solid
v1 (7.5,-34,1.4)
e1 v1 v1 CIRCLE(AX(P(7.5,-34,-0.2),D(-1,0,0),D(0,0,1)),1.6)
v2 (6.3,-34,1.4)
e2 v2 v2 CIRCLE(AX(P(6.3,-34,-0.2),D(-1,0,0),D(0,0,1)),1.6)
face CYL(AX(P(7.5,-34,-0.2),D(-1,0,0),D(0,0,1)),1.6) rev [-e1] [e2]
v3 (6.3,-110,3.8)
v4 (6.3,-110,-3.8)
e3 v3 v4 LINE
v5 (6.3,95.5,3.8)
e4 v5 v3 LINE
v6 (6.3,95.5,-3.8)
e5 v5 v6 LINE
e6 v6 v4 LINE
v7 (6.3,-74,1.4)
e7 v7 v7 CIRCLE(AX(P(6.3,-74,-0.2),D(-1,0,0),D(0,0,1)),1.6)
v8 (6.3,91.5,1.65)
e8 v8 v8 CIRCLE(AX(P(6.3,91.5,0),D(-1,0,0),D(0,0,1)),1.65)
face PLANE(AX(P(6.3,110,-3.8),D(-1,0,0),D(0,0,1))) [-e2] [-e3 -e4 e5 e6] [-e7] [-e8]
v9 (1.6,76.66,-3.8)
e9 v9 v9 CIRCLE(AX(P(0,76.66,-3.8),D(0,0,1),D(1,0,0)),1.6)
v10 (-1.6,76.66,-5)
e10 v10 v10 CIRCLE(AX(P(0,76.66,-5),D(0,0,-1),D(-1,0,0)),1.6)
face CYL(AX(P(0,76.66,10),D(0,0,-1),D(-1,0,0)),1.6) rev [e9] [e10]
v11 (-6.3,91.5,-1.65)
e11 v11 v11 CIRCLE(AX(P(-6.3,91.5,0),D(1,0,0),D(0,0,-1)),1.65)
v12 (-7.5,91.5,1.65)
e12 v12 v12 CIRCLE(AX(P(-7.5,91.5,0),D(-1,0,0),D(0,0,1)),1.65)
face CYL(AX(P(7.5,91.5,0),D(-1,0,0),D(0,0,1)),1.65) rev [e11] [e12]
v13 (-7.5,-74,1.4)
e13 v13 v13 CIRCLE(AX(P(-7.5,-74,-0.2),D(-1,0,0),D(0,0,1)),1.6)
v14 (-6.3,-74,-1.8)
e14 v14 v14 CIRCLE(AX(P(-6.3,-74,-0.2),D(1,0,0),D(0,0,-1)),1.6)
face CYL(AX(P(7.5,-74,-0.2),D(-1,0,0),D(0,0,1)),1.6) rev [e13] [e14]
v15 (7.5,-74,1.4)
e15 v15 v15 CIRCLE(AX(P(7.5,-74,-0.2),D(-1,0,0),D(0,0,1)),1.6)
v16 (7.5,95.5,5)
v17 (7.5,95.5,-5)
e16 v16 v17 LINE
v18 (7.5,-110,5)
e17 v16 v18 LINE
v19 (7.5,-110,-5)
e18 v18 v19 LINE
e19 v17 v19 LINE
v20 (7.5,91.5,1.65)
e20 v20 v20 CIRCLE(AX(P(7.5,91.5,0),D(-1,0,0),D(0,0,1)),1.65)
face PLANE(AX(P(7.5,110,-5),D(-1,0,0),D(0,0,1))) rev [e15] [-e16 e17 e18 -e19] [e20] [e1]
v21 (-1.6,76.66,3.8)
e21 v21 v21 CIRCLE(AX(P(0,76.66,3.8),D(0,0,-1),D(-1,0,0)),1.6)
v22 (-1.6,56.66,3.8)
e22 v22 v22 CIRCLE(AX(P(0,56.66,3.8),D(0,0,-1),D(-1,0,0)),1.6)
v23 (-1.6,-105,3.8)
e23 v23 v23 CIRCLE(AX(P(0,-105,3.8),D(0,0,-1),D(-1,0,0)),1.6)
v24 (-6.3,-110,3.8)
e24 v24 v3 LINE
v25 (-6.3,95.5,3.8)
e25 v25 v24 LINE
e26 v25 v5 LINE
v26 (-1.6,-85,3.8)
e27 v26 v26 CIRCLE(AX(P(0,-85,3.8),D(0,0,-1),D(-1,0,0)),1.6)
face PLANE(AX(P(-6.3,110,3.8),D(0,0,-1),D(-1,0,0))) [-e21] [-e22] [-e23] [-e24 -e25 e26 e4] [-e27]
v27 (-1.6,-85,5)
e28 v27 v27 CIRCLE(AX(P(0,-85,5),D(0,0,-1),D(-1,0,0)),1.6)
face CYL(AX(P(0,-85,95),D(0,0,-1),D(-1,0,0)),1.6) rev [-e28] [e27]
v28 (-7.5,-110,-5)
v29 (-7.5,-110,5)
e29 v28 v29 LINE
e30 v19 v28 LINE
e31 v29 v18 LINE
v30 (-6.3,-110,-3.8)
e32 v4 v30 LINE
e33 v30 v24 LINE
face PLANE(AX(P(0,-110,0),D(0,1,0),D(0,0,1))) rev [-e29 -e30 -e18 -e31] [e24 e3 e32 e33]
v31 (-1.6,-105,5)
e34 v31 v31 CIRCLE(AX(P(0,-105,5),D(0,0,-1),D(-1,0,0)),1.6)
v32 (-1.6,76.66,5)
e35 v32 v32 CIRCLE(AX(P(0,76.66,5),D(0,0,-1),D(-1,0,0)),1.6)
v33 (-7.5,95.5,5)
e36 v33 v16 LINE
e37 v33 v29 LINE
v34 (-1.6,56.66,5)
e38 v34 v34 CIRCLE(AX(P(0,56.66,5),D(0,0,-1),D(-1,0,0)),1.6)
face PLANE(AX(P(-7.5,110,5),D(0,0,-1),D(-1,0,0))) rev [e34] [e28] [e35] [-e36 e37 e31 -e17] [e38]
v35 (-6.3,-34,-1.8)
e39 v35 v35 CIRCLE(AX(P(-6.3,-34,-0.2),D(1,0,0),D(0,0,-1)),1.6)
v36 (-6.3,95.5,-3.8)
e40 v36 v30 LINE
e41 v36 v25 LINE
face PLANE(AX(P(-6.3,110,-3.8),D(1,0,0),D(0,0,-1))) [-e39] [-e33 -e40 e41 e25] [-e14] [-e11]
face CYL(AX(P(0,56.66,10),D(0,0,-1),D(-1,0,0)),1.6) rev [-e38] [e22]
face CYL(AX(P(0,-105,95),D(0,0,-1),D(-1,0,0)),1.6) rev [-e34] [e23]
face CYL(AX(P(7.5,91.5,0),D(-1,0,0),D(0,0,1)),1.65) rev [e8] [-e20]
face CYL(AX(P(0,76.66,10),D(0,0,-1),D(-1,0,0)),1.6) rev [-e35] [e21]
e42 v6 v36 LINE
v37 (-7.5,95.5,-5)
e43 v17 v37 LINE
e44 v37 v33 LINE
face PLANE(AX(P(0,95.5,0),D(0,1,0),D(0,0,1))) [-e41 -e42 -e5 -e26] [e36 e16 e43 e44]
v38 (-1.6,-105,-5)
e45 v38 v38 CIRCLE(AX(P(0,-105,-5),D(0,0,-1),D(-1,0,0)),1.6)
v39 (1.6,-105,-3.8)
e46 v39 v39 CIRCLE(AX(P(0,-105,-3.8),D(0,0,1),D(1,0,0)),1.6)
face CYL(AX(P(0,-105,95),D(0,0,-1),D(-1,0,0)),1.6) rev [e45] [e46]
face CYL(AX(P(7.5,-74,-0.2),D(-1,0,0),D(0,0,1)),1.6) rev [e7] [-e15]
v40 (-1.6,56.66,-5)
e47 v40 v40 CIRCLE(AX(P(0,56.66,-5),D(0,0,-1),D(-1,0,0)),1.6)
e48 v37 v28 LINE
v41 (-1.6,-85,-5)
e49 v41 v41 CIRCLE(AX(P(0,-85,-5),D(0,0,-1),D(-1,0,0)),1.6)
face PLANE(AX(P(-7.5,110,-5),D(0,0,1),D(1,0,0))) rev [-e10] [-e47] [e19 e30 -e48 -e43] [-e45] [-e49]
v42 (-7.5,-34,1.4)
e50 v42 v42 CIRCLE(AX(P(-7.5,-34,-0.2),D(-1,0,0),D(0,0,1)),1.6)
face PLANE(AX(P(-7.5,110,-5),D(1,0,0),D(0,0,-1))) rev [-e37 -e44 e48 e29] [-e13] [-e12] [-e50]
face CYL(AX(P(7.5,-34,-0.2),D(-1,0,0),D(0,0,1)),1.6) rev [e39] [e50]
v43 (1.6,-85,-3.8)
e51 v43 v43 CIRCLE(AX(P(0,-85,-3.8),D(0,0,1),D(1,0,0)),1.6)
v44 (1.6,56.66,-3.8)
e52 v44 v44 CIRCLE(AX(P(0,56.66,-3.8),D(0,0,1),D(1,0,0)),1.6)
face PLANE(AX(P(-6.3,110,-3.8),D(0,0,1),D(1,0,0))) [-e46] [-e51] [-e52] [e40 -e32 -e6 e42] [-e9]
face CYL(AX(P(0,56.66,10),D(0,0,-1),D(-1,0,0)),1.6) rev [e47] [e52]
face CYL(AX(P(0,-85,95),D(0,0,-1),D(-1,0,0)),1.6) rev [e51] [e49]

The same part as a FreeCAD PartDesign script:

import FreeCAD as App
import Part
import Sketcher
Q = App.Units.Quantity

doc = App.newDocument("Part")
body = doc.addObject("PartDesign::Body", "Body")

sketch1 = body.newObject("Sketcher::SketchObject", "Sketch")
sketch1.AttachmentSupport = (doc.getObject("XZ_Plane"), [""])
sketch1.MapMode = "FlatFace"
sketch1.addGeometry([
    Part.LineSegment(App.Vector(-8, -5, 0), App.Vector(-8, 5, 0)),
    Part.LineSegment(App.Vector(-8, 5, 0), App.Vector(8, 5, 0)),
    Part.LineSegment(App.Vector(8, 5, 0), App.Vector(8, -5, 0)),
    Part.LineSegment(App.Vector(8, -5, 0), App.Vector(-8, -5, 0)),
    Part.LineSegment(App.Vector(6, 4, 0), App.Vector(-6, 4, 0)),
    Part.LineSegment(App.Vector(-6, 4, 0), App.Vector(-6, -4, 0)),
    Part.LineSegment(App.Vector(-6, -4, 0), App.Vector(6, -4, 0)),
    Part.LineSegment(App.Vector(6, -4, 0), App.Vector(6, 4, 0)),
], False)
sketch1.addConstraint([
    Sketcher.Constraint("Coincident", 0, 2, 1, 1),
    Sketcher.Constraint("Coincident", 1, 2, 2, 1),
    Sketcher.Constraint("Coincident", 2, 2, 3, 1),
    Sketcher.Constraint("Coincident", 3, 2, 0, 1),
    Sketcher.Constraint("Coincident", 4, 2, 5, 1),
    Sketcher.Constraint("Coincident", 5, 2, 6, 1),
    Sketcher.Constraint("Coincident", 6, 2, 7, 1),
    Sketcher.Constraint("Coincident", 7, 2, 4, 1),
    Sketcher.Constraint("Vertical", 0),
    Sketcher.Constraint("Horizontal", 1),
    Sketcher.Constraint("Vertical", 2),
    Sketcher.Constraint("Horizontal", 3),
    Sketcher.Constraint("Horizontal", 4),
    Sketcher.Constraint("Vertical", 5),
    Sketcher.Constraint("Horizontal", 6),
    Sketcher.Constraint("Vertical", 7),
    Sketcher.Constraint("Symmetric", 0, 2, 2, 2, -1, 1),
    Sketcher.Constraint("Symmetric", 4, 2, 6, 2, -1, 1),
    Sketcher.Constraint("DistanceX", 1, 1, 1, 2, Q("15 mm")),
    Sketcher.Constraint("DistanceY", 0, 1, 0, 2, Q("10 mm")),
    Sketcher.Constraint("DistanceX", 4, 2, 4, 1, Q("12.6 mm")),
    Sketcher.Constraint("DistanceY", 5, 2, 5, 1, Q("7.6 mm")),
])
pad1 = body.newObject("PartDesign::Pad", "Pad")
pad1.Profile = sketch1
pad1.Length = 220
pad1.Midplane = True

sketch2 = body.newObject("Sketcher::SketchObject", "Sketch001")
sketch2.AttachmentSupport = (doc.getObject("XY_Plane"), [""])
sketch2.MapMode = "FlatFace"
sketch2.AttachmentOffset = App.Placement(App.Vector(0, 0, -5), App.Rotation())
sketch2.addGeometry([
    Part.Circle(App.Vector(0, -85, 0), App.Vector(0, 0, 1), 1.6),
    Part.Circle(App.Vector(0, -105, 0), App.Vector(0, 0, 1), 1.6),
], False)
sketch2.addConstraint([
    Sketcher.Constraint("Equal", 0, 1),
    Sketcher.Constraint("PointOnObject", 0, 3, -2),
    Sketcher.Constraint("PointOnObject", 1, 3, -2),
    Sketcher.Constraint("Diameter", 0, Q("3.2 mm")),
    Sketcher.Constraint("DistanceY", 0, 3, -1, 1, Q("85 mm")),
    Sketcher.Constraint("DistanceY", 1, 3, -1, 1, Q("105 mm")),
])
pocket1 = body.newObject("PartDesign::Pocket", "Pocket")
pocket1.Profile = sketch2
pocket1.Length = 100
pocket1.Reversed = True

sketch3 = body.newObject("Sketcher::SketchObject", "Sketch002")
sketch3.AttachmentSupport = (doc.getObject("YZ_Plane"), [""])
sketch3.MapMode = "FlatFace"
sketch3.AttachmentOffset = App.Placement(App.Vector(0, 0, -7.5), App.Rotation())
sketch3.addGeometry([
    Part.Circle(App.Vector(-74, -0.2, 0), App.Vector(0, 0, 1), 1.6),
    Part.Circle(App.Vector(-34, -0.2, 0), App.Vector(0, 0, 1), 1.6),
], False)
sketch3.addConstraint([
    Sketcher.Constraint("Equal", 0, 1),
    Sketcher.Constraint("Horizontal", 0, 3, 1, 3),
    Sketcher.Constraint("Diameter", 0, Q("3.2 mm")),
    Sketcher.Constraint("DistanceX", 0, 3, -1, 1, Q("74 mm")),
    Sketcher.Constraint("DistanceX", 1, 3, -1, 1, Q("34 mm")),
    Sketcher.Constraint("DistanceY", 0, 3, -1, 1, Q("0.2 mm")),
])
pocket2 = body.newObject("PartDesign::Pocket", "Pocket001")
pocket2.Profile = sketch3
pocket2.Length = 15
pocket2.Reversed = True

sketch4 = body.newObject("Sketcher::SketchObject", "Sketch003")
sketch4.AttachmentSupport = (doc.getObject("XZ_Plane"), [""])
sketch4.MapMode = "FlatFace"
sketch4.AttachmentOffset = App.Placement(App.Vector(0, 0, -110), App.Rotation())
sketch4.addGeometry([
    Part.LineSegment(App.Vector(-8, -5, 0), App.Vector(-8, 5, 0)),
    Part.LineSegment(App.Vector(-8, 5, 0), App.Vector(8, 5, 0)),
    Part.LineSegment(App.Vector(8, 5, 0), App.Vector(8, -5, 0)),
    Part.LineSegment(App.Vector(8, -5, 0), App.Vector(-8, -5, 0)),
], False)
sketch4.addConstraint([
    Sketcher.Constraint("Coincident", 0, 2, 1, 1),
    Sketcher.Constraint("Coincident", 1, 2, 2, 1),
    Sketcher.Constraint("Coincident", 2, 2, 3, 1),
    Sketcher.Constraint("Coincident", 3, 2, 0, 1),
    Sketcher.Constraint("Vertical", 0),
    Sketcher.Constraint("Horizontal", 1),
    Sketcher.Constraint("Vertical", 2),
    Sketcher.Constraint("Horizontal", 3),
    Sketcher.Constraint("Symmetric", 0, 2, 2, 2, -1, 1),
    Sketcher.Constraint("DistanceX", 1, 1, 1, 2, Q("15 mm")),
    Sketcher.Constraint("DistanceY", 0, 1, 0, 2, Q("10 mm")),
])
pocket3 = body.newObject("PartDesign::Pocket", "Pocket002")
pocket3.Profile = sketch4
pocket3.Length = 14.5
pocket3.Reversed = True

sketch5 = body.newObject("Sketcher::SketchObject", "Sketch004")
sketch5.AttachmentSupport = (doc.getObject("XY_Plane"), [""])
sketch5.MapMode = "FlatFace"
sketch5.AttachmentOffset = App.Placement(App.Vector(0, 0, -5), App.Rotation())
sketch5.addGeometry([
    Part.Circle(App.Vector(0, 56.7, 0), App.Vector(0, 0, 1), 1.6),
    Part.Circle(App.Vector(0, 76.7, 0), App.Vector(0, 0, 1), 1.6),
], False)
sketch5.addConstraint([
    Sketcher.Constraint("Equal", 0, 1),
    Sketcher.Constraint("PointOnObject", 0, 3, -2),
    Sketcher.Constraint("PointOnObject", 1, 3, -2),
    Sketcher.Constraint("Diameter", 0, Q("3.2 mm")),
    Sketcher.Constraint("DistanceY", 0, 3, 1, 3, Q("20 mm")),
    Sketcher.Constraint("DistanceY", -1, 1, 0, 3, Q("56.66 mm")),
])
pocket4 = body.newObject("PartDesign::Pocket", "Pocket003")
pocket4.Profile = sketch5
pocket4.Length = 15
pocket4.Reversed = True

sketch6 = body.newObject("Sketcher::SketchObject", "Sketch005")
sketch6.AttachmentSupport = (doc.getObject("YZ_Plane"), [""])
sketch6.MapMode = "FlatFace"
sketch6.AttachmentOffset = App.Placement(App.Vector(0, 0, -7.5), App.Rotation())
sketch6.addGeometry(Part.Circle(App.Vector(91.5, 0, 0), App.Vector(0, 0, 1), 1.6), False)
sketch6.addConstraint([
    Sketcher.Constraint("PointOnObject", 0, 3, -1),
    Sketcher.Constraint("Diameter", 0, Q("3.3 mm")),
    Sketcher.Constraint("DistanceX", -1, 1, 0, 3, Q("91.5 mm")),
])
pocket5 = body.newObject("PartDesign::Pocket", "Pocket004")
pocket5.Profile = sketch6
pocket5.Length = 15
pocket5.Reversed = True

doc.recompute()
